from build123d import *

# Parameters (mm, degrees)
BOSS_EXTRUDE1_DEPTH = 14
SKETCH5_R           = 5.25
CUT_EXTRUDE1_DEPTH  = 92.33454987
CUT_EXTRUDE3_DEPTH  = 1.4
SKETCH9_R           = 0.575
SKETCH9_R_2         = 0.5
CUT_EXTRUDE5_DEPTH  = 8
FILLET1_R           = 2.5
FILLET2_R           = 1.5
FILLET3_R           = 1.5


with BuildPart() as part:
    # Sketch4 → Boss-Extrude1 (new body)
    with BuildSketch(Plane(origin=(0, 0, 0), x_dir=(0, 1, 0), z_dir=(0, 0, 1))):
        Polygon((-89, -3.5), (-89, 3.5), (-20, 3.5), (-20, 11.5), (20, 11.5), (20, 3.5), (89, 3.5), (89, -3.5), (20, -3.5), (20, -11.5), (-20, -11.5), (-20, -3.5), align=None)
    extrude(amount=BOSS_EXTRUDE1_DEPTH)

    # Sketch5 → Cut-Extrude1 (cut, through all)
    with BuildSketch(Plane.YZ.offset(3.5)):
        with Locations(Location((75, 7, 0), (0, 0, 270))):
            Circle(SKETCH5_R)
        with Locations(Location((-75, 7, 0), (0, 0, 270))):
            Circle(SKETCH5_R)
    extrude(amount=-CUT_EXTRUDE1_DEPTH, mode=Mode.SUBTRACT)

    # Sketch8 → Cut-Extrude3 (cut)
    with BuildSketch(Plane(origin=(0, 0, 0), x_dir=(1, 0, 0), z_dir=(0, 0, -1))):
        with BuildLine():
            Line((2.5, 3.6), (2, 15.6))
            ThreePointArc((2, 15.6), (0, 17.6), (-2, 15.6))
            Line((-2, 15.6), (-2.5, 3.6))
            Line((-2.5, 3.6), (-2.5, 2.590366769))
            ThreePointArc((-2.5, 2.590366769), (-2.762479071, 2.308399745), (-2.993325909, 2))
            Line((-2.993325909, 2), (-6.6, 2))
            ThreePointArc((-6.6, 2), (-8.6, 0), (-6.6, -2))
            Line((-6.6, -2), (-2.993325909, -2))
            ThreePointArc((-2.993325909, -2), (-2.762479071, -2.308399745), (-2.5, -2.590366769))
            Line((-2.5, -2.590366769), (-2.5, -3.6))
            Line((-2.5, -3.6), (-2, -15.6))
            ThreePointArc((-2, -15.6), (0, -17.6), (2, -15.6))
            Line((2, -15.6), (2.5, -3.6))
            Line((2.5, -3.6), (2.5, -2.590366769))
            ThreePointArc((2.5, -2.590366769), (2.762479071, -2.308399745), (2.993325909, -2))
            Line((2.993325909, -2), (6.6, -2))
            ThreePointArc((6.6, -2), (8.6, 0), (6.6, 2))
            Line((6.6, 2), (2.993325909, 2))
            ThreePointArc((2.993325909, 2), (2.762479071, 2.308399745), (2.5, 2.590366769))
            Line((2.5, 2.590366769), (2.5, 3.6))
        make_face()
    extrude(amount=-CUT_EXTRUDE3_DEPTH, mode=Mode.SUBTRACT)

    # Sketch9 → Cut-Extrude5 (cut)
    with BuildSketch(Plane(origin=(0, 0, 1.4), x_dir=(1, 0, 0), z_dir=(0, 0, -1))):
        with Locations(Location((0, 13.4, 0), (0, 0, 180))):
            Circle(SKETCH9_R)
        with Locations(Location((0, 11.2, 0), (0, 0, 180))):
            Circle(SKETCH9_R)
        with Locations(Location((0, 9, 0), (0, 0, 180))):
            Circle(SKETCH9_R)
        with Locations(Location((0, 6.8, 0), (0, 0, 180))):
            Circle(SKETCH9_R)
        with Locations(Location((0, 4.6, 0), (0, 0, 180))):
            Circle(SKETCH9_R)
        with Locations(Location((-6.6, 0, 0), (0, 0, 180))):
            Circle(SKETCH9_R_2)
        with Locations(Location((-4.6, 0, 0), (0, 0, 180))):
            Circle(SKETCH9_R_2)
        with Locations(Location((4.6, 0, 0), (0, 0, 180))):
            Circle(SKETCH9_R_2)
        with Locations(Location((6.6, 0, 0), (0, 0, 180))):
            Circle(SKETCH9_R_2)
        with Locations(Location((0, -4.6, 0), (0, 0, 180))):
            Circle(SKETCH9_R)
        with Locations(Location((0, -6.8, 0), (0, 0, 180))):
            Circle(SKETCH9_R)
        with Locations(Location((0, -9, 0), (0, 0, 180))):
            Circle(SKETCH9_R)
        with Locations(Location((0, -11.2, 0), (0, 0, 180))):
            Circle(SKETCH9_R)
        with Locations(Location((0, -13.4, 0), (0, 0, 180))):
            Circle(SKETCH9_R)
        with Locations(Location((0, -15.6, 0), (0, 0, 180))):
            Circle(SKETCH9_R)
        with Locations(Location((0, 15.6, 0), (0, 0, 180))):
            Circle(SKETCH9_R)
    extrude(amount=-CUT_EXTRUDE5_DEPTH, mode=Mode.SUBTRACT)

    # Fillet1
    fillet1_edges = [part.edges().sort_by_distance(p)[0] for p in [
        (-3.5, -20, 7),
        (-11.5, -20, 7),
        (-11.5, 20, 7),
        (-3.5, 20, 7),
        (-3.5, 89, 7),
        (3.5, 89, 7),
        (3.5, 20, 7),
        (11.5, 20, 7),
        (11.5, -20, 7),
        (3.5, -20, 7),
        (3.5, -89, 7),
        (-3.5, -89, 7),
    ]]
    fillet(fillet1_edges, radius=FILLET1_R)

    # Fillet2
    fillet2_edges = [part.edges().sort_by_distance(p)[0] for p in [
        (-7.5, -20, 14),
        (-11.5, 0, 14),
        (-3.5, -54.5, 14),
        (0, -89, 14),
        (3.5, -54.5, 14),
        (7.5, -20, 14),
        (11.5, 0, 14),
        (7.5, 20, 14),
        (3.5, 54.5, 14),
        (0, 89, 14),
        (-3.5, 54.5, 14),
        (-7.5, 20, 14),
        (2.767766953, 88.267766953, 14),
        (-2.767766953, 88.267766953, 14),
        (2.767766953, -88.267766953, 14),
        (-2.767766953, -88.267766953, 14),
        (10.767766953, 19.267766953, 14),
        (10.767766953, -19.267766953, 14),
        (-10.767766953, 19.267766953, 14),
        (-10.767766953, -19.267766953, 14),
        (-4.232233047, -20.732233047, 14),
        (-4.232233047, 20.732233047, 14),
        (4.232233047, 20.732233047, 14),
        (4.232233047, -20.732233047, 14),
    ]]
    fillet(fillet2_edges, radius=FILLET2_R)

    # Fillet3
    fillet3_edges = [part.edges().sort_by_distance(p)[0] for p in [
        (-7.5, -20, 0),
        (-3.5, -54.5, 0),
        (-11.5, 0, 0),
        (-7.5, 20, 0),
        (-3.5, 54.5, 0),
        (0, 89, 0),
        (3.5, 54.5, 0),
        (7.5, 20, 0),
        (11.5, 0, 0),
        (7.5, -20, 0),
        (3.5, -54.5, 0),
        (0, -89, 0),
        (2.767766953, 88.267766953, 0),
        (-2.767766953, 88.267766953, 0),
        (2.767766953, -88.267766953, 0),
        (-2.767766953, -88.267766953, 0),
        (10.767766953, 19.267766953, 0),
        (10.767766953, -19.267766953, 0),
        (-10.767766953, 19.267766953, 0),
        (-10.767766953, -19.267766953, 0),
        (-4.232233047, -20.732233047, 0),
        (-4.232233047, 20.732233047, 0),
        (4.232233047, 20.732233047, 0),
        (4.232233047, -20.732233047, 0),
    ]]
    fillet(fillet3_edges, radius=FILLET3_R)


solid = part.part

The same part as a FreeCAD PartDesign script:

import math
import FreeCAD as App
import Part
import Sketcher

V = App.Vector
Q = App.Units.Quantity


def edges_at(feature, points):
    """Names of the edges that pass closest to the given points."""
    edges = feature.Shape.Edges
    near = lambda p: min(range(len(edges)), key=lambda i: edges[i].distToShape(Part.Vertex(*p))[0])
    return sorted({f"Edge{near(p) + 1}" for p in points})

doc = App.newDocument("Part")
params = doc.addObject("Spreadsheet::Sheet", "Params")
for row, (alias, value) in enumerate([
    ("sketch1_width", "7 mm"),
    ("sketch1_width2", "8 mm"),
    ("sketch1_height", "69 mm"),
    ("sketch1_height2", "40 mm"),
    ("pad1_length", "14 mm"),
    ("sketch2_diameter", "10.5 mm"),
    ("sketch3_radius", "2 mm"),
    ("sketch3_radius2", "3.6 mm"),
    ("pocket2_length", "1.4 mm"),
    ("sketch4_diameter", "1 mm"),
    ("sketch4_diameter2", "1.15 mm"),
    ("pocket3_length", "8 mm"),
    ("fillet_radius", "2.5 mm"),
    ("fillet2_radius", "1.5 mm"),
    ("fillet3_radius", "1.5 mm"),
], start=1):
    params.set(f"A{row}", alias)
    params.set(f"B{row}", "=" + value)
    params.setAlias(f"B{row}", alias)

body = doc.addObject("PartDesign::Body", "Body")

sketch1 = doc.addObject("Sketcher::SketchObject", "Sketch")
body.addObject(sketch1)
sketch1.AttachmentSupport = (doc.XY_Plane, [""])
sketch1.MapMode = "FlatFace"
sketch1.addGeometry([
    Part.LineSegment(V(-4, -89, 0), V(4, -89, 0)),
    Part.LineSegment(V(4, -89, 0), V(4, -20, 0)),
    Part.LineSegment(V(4, -20, 0), V(12, -20, 0)),
    Part.LineSegment(V(12, -20, 0), V(12, 20, 0)),
    Part.LineSegment(V(12, 20, 0), V(4, 20, 0)),
    Part.LineSegment(V(4, 20, 0), V(4, 89, 0)),
    Part.LineSegment(V(4, 89, 0), V(-4, 89, 0)),
    Part.LineSegment(V(-4, 89, 0), V(-4, 20, 0)),
    Part.LineSegment(V(-4, 20, 0), V(-12, 20, 0)),
    Part.LineSegment(V(-12, 20, 0), V(-12, -20, 0)),
    Part.LineSegment(V(-12, -20, 0), V(-4, -20, 0)),
    Part.LineSegment(V(-4, -20, 0), V(-4, -89, 0)),
], False)
sketch1.addConstraint([
    Sketcher.Constraint("Coincident", 0, 2, 1, 1),
    Sketcher.Constraint("Coincident", 1, 2, 2, 1),
    Sketcher.Constraint("Coincident", 2, 2, 3, 1),
    Sketcher.Constraint("Coincident", 3, 2, 4, 1),
    Sketcher.Constraint("Coincident", 4, 2, 5, 1),
    Sketcher.Constraint("Coincident", 5, 2, 6, 1),
    Sketcher.Constraint("Coincident", 6, 2, 7, 1),
    Sketcher.Constraint("Coincident", 7, 2, 8, 1),
    Sketcher.Constraint("Coincident", 8, 2, 9, 1),
    Sketcher.Constraint("Coincident", 9, 2, 10, 1),
    Sketcher.Constraint("Coincident", 10, 2, 11, 1),
    Sketcher.Constraint("Coincident", 11, 2, 0, 1),
    Sketcher.Constraint("Horizontal", 0),
    Sketcher.Constraint("Vertical", 1),
    Sketcher.Constraint("Horizontal", 2),
    Sketcher.Constraint("Vertical", 3),
    Sketcher.Constraint("Horizontal", 4),
    Sketcher.Constraint("Vertical", 5),
    Sketcher.Constraint("Horizontal", 6),
    Sketcher.Constraint("Vertical", 7),
    Sketcher.Constraint("Horizontal", 8),
    Sketcher.Constraint("Vertical", 9),
    Sketcher.Constraint("Horizontal", 10),
    Sketcher.Constraint("Vertical", 11),
    Sketcher.Constraint("Symmetric", 0, 2, 6, 2, -1, 1),
    Sketcher.Constraint("Symmetric", 2, 2, 8, 2, -1, 1),
    Sketcher.Constraint("Symmetric", 4, 2, 10, 2, -1, 1),
    Sketcher.Constraint("Symmetric", 4, 2, 7, 2, -2),
    Sketcher.Constraint("DistanceX", 0, 1, 0, 2, Q("7 mm")),
    Sketcher.Constraint("DistanceX", 2, 1, 2, 2, Q("8 mm")),
    Sketcher.Constraint("DistanceY", 1, 1, 1, 2, Q("69 mm")),
    Sketcher.Constraint("DistanceY", 3, 1, 3, 2, Q("40 mm")),
])
sketch1.setExpression("Constraints[28]", "Params.sketch1_width")
sketch1.setExpression("Constraints[29]", "Params.sketch1_width2")
sketch1.setExpression("Constraints[30]", "Params.sketch1_height")
sketch1.setExpression("Constraints[31]", "Params.sketch1_height2")
pad1 = doc.addObject("PartDesign::Pad", "Pad")
body.addObject(pad1)
pad1.Profile = sketch1
pad1.setExpression("Length", "Params.pad1_length")

sketch2 = doc.addObject("Sketcher::SketchObject", "Sketch001")
body.addObject(sketch2)
sketch2.AttachmentSupport = (doc.YZ_Plane, [""])
sketch2.MapMode = "FlatFace"
sketch2.AttachmentOffset = App.Placement(V(0, 0, 3.5), App.Rotation())
sketch2.addGeometry([
    Part.Circle(V(75, 7, 0), V(0, 0, 1), 5),
    Part.Circle(V(-75, 7, 0), V(0, 0, 1), 5),
], False)
sketch2.addConstraint([
    Sketcher.Constraint("Equal", 0, 1),
    Sketcher.Constraint("Symmetric", 0, 3, 1, 3, -2),
    Sketcher.Constraint("Diameter", 0, Q("10.5 mm")),
    Sketcher.Constraint("DistanceX", -1, 1, 0, 3, Q("75 mm")),
    Sketcher.Constraint("DistanceY", -1, 1, 0, 3, Q("7 mm")),
])
sketch2.setExpression("Constraints[2]", "Params.sketch2_diameter")
pocket1 = doc.addObject("PartDesign::Pocket", "Pocket")
body.addObject(pocket1)
pocket1.Profile = sketch2
pocket1.Type = "ThroughAll"

sketch3 = doc.addObject("Sketcher::SketchObject", "Sketch002")
body.addObject(sketch3)
sketch3.AttachmentSupport = (doc.XY_Plane, [""])
sketch3.MapMode = "FlatFace"
sketch3.addGeometry([
    Part.LineSegment(V(2.5, -3.6, 0), V(2, -15.6, 0)),
    Part.ArcOfCircle(Part.Circle(V(0, -15.6, 0), V(0, 0, 1), 2), math.radians(180), math.radians(360)),
    Part.LineSegment(V(-2, -15.6, 0), V(-2.5, -3.6, 0)),
    Part.LineSegment(V(-2.5, -3.6, 0), V(-2.5, -2.6, 0)),
    Part.ArcOfCircle(Part.Circle(V(0, 0, 0), V(0, 0, 1), 3.6), math.radians(-146.25), math.radians(-133.98)),
    Part.LineSegment(V(-3, -2, 0), V(-6.6, -2, 0)),
    Part.ArcOfCircle(Part.Circle(V(-6.6, 0, 0), V(0, 0, 1), 2), math.radians(90), math.radians(270)),
    Part.LineSegment(V(-6.6, 2, 0), V(-3, 2, 0)),
    Part.ArcOfCircle(Part.Circle(V(0, 0, 0), V(0, 0, 1), 3.6), math.radians(133.98), math.radians(146.25)),
    Part.LineSegment(V(-2.5, 2.6, 0), V(-2.5, 3.6, 0)),
    Part.LineSegment(V(-2.5, 3.6, 0), V(-2, 15.6, 0)),
    Part.ArcOfCircle(Part.Circle(V(0, 15.6, 0), V(0, 0, 1), 2), math.radians(0), math.radians(180)),
    Part.LineSegment(V(2, 15.6, 0), V(2.5, 3.6, 0)),
    Part.LineSegment(V(2.5, 3.6, 0), V(2.5, 2.6, 0)),
    Part.ArcOfCircle(Part.Circle(V(0, 0, 0), V(0, 0, 1), 3.6), math.radians(33.75), math.radians(46.02)),
    Part.LineSegment(V(3, 2, 0), V(6.6, 2, 0)),
    Part.ArcOfCircle(Part.Circle(V(6.6, 0, 0), V(0, 0, 1), 2), math.radians(-90), math.radians(90)),
    Part.LineSegment(V(6.6, -2, 0), V(3, -2, 0)),
    Part.ArcOfCircle(Part.Circle(V(0, 0, 0), V(0, 0, 1), 3.6), math.radians(-46.02), math.radians(-33.75)),
    Part.LineSegment(V(2.5, -2.6, 0), V(2.5, -3.6, 0)),
], False)
sketch3.addConstraint([
    Sketcher.Constraint("Coincident", 0, 2, 1, 2),
    Sketcher.Constraint("Coincident", 1, 1, 2, 1),
    Sketcher.Constraint("Coincident", 2, 2, 3, 1),
    Sketcher.Constraint("Coincident", 3, 2, 4, 2),
    Sketcher.Constraint("Coincident", 4, 1, 5, 1),
    Sketcher.Constraint("Tangent", 5, 2, 6, 2),
    Sketcher.Constraint("Tangent", 6, 1, 7, 1),
    Sketcher.Constraint("Coincident", 7, 2, 8, 2),
    Sketcher.Constraint("Coincident", 8, 1, 9, 1),
    Sketcher.Constraint("Coincident", 9, 2, 10, 1),
    Sketcher.Constraint("Coincident", 10, 2, 11, 2),
    Sketcher.Constraint("Coincident", 11, 1, 12, 1),
    Sketcher.Constraint("Coincident", 12, 2, 13, 1),
    Sketcher.Constraint("Coincident", 13, 2, 14, 2),
    Sketcher.Constraint("Coincident", 14, 1, 15, 1),
    Sketcher.Constraint("Tangent", 15, 2, 16, 2),
    Sketcher.Constraint("Tangent", 16, 1, 17, 1),
    Sketcher.Constraint("Coincident", 17, 2, 18, 2),
    Sketcher.Constraint("Coincident", 18, 1, 19, 1),
    Sketcher.Constraint("Coincident", 19, 2, 0, 1),
    Sketcher.Constraint("Vertical", 3),
    Sketcher.Constraint("Horizontal", 5),
    Sketcher.Constraint("Horizontal", 7),
    Sketcher.Constraint("Vertical", 9),
    Sketcher.Constraint("Vertical", 13),
    Sketcher.Constraint("Horizontal", 15),
    Sketcher.Constraint("Horizontal", 17),
    Sketcher.Constraint("Vertical", 19),
    Sketcher.Constraint("Coincident", 4, 3, -1, 1),
    Sketcher.Constraint("Coincident", 8, 3, -1, 1),
    Sketcher.Constraint("Coincident", 14, 3, -1, 1),
    Sketcher.Constraint("Coincident", 18, 3, -1, 1),
    Sketcher.Constraint("Equal", 1, 6),
    Sketcher.Constraint("Equal", 4, 8),
    Sketcher.Constraint("Equal", 6, 11),
    Sketcher.Constraint("Equal", 8, 14),
    Sketcher.Constraint("Equal", 11, 16),
    Sketcher.Constraint("Equal", 14, 18),
    Sketcher.Constraint("Symmetric", 1, 3, 11, 3, -1, 1),
    Sketcher.Constraint("Symmetric", 6, 3, 16, 3, -1, 1),
    Sketcher.Constraint("Symmetric", 2, 2, 12, 2, -1, 1),
    Sketcher.Constraint("Symmetric", 9, 2, 19, 2, -1, 1),
    Sketcher.Constraint("Symmetric", 0, 2, 1, 1, -2),
    Sketcher.Constraint("Symmetric", 9, 2, 12, 2, -2),
    Sketcher.Constraint("PointOnObject", 6, 3, -1),
    Sketcher.Constraint("Parallel", 0, 10),
    Sketcher.Constraint("Parallel", 2, 12),
    Sketcher.Constraint("Horizontal", 1, 3, 0, 2),
    Sketcher.Constraint("Radius", 1, Q("2 mm")),
    Sketcher.Constraint("Radius", 4, Q("3.6 mm")),
    Sketcher.Constraint("DistanceY", 9, 2, 10, 2, Q("12 mm")),
    Sketcher.Constraint("DistanceX", 9, 2, 12, 2, Q("5 mm")),
    Sketcher.Constraint("DistanceY", 1, 3, -1, 1, Q("15.6 mm")),
    Sketcher.Constraint("DistanceX", 6, 3, -1, 1, Q("6.6 mm")),
])
sketch3.setExpression("Constraints[48]", "Params.sketch3_radius")
sketch3.setExpression("Constraints[49]", "Params.sketch3_radius2")
pocket2 = doc.addObject("PartDesign::Pocket", "Pocket001")
body.addObject(pocket2)
pocket2.Profile = sketch3
pocket2.setExpression("Length", "Params.pocket2_length")
pocket2.Reversed = True

sketch4 = doc.addObject("Sketcher::SketchObject", "Sketch003")
body.addObject(sketch4)
sketch4.AttachmentSupport = (doc.XY_Plane, [""])
sketch4.MapMode = "FlatFace"
sketch4.AttachmentOffset = App.Placement(V(0, 0, 1.4), App.Rotation())
sketch4.addGeometry([
    Part.Circle(V(0, -13.4, 0), V(0, 0, 1), 0.6),
    Part.Circle(V(0, -11.2, 0), V(0, 0, 1), 0.6),
    Part.Circle(V(0, -9, 0), V(0, 0, 1), 0.6),
    Part.Circle(V(0, -6.8, 0), V(0, 0, 1), 0.6),
    Part.Circle(V(0, -4.6, 0), V(0, 0, 1), 0.6),
    Part.Circle(V(-6.6, 0, 0), V(0, 0, 1), 0.5),
    Part.Circle(V(-4.6, 0, 0), V(0, 0, 1), 0.5),
    Part.Circle(V(4.6, 0, 0), V(0, 0, 1), 0.5),
    Part.Circle(V(6.6, 0, 0), V(0, 0, 1), 0.5),
    Part.Circle(V(0, 4.6, 0), V(0, 0, 1), 0.6),
    Part.Circle(V(0, 6.8, 0), V(0, 0, 1), 0.6),
    Part.Circle(V(0, 9, 0), V(0, 0, 1), 0.6),
    Part.Circle(V(0, 11.2, 0), V(0, 0, 1), 0.6),
    Part.Circle(V(0, 13.4, 0), V(0, 0, 1), 0.6),
    Part.Circle(V(0, 15.6, 0), V(0, 0, 1), 0.6),
    Part.Circle(V(0, -15.6, 0), V(0, 0, 1), 0.6),
], False)
sketch4.addConstraint([
    Sketcher.Constraint("Equal", 0, 1),
    Sketcher.Constraint("Equal", 1, 2),
    Sketcher.Constraint("Equal", 2, 3),
    Sketcher.Constraint("Equal", 3, 4),
    Sketcher.Constraint("Equal", 5, 6),
    Sketcher.Constraint("Equal", 6, 7),
    Sketcher.Constraint("Equal", 7, 8),
    Sketcher.Constraint("Equal", 4, 9),
    Sketcher.Constraint("Equal", 9, 10),
    Sketcher.Constraint("Equal", 10, 11),
    Sketcher.Constraint("Equal", 11, 12),
    Sketcher.Constraint("Equal", 12, 13),
    Sketcher.Constraint("Equal", 13, 14),
    Sketcher.Constraint("Equal", 14, 15),
    Sketcher.Constraint("Symmetric", 6, 3, 7, 3, -1, 1),
    Sketcher.Constraint("Symmetric", 5, 3, 8, 3, -1, 1),
    Sketcher.Constraint("Symmetric", 4, 3, 9, 3, -1, 1),
    Sketcher.Constraint("Symmetric", 3, 3, 10, 3, -1, 1),
    Sketcher.Constraint("Symmetric", 2, 3, 11, 3, -1, 1),
    Sketcher.Constraint("Symmetric", 1, 3, 12, 3, -1, 1),
    Sketcher.Constraint("Symmetric", 0, 3, 13, 3, -1, 1),
    Sketcher.Constraint("Symmetric", 14, 3, 15, 3, -1, 1),
    Sketcher.Constraint("PointOnObject", 0, 3, -2),
    Sketcher.Constraint("PointOnObject", 1, 3, -2),
    Sketcher.Constraint("PointOnObject", 2, 3, -2),
    Sketcher.Constraint("PointOnObject", 3, 3, -2),
    Sketcher.Constraint("PointOnObject", 4, 3, -2),
    Sketcher.Constraint("PointOnObject", 5, 3, -1),
    Sketcher.Constraint("PointOnObject", 6, 3, -1),
    Sketcher.Constraint("PointOnObject", 14, 3, -2),
    Sketcher.Constraint("Diameter", 5, Q("1 mm")),
    Sketcher.Constraint("Diameter", 0, Q("1.15 mm")),
    Sketcher.Constraint("DistanceY", 2, 3, -1, 1, Q("9 mm")),
    Sketcher.Constraint("DistanceX", 5, 3, 6, 3, Q("2 mm")),
    Sketcher.Constraint("DistanceY", 9, 3, 14, 3, Q("11 mm")),
    Sketcher.Constraint("DistanceY", 0, 3, -1, 1, Q("13.4 mm")),
    Sketcher.Constraint("DistanceY", 1, 3, -1, 1, Q("11.2 mm")),
    Sketcher.Constraint("DistanceY", 3, 3, -1, 1, Q("6.8 mm")),
    Sketcher.Constraint("DistanceY", 4, 3, -1, 1, Q("4.6 mm")),
    Sketcher.Constraint("DistanceX", 5, 3, -1, 1, Q("6.6 mm")),
])
sketch4.setExpression("Constraints[30]", "Params.sketch4_diameter")
sketch4.setExpression("Constraints[31]", "Params.sketch4_diameter2")
pocket3 = doc.addObject("PartDesign::Pocket", "Pocket002")
body.addObject(pocket3)
pocket3.Profile = sketch4
pocket3.setExpression("Length", "Params.pocket3_length")
pocket3.Reversed = True
doc.recompute()

fillet = doc.addObject("PartDesign::Fillet", "Fillet")
body.addObject(fillet)
fillet.Base = (pocket3, edges_at(pocket3, [
    (-3.5, -20, 7),
    (-11.5, -20, 7),
    (-11.5, 20, 7),
    (-3.5, 20, 7),
    (-3.5, 89, 7),
    (3.5, 89, 7),
    (3.5, 20, 7),
    (11.5, 20, 7),
    (11.5, -20, 7),
    (3.5, -20, 7),
    (3.5, -89, 7),
    (-3.5, -89, 7),
]))
fillet.setExpression("Radius", "Params.fillet_radius")
doc.recompute()

fillet2 = doc.addObject("PartDesign::Fillet", "Fillet001")
body.addObject(fillet2)
fillet2.Base = (fillet, edges_at(fillet, [
    (-7.5, -20, 14),
    (-11.5, 0, 14),
    (-3.5, -54.5, 14),
    (0, -89, 14),
    (3.5, -54.5, 14),
    (7.5, -20, 14),
    (11.5, 0, 14),
    (7.5, 20, 14),
    (3.5, 54.5, 14),
    (0, 89, 14),
    (-3.5, 54.5, 14),
    (-7.5, 20, 14),
    (2.768, 88.268, 14),
    (-2.768, 88.268, 14),
    (2.768, -88.268, 14),
    (-2.768, -88.268, 14),
    (10.768, 19.268, 14),
    (10.768, -19.268, 14),
    (-10.768, 19.268, 14),
    (-10.768, -19.268, 14),
    (-4.232, -20.732, 14),
    (-4.232, 20.732, 14),
    (4.232, 20.732, 14),
    (4.232, -20.732, 14),
]))
fillet2.setExpression("Radius", "Params.fillet2_radius")
doc.recompute()

fillet3 = doc.addObject("PartDesign::Fillet", "Fillet002")
body.addObject(fillet3)
fillet3.Base = (fillet2, edges_at(fillet2, [
    (-7.5, -20, 0),
    (-3.5, -54.5, 0),
    (-11.5, 0, 0),
    (-7.5, 20, 0),
    (-3.5, 54.5, 0),
    (0, 89, 0),
    (3.5, 54.5, 0),
    (7.5, 20, 0),
    (11.5, 0, 0),
    (7.5, -20, 0),
    (3.5, -54.5, 0),
    (0, -89, 0),
    (2.768, 88.268, 0),
    (-2.768, 88.268, 0),
    (2.768, -88.268, 0),
    (-2.768, -88.268, 0),
    (10.768, 19.268, 0),
    (10.768, -19.268, 0),
    (-10.768, 19.268, 0),
    (-10.768, -19.268, 0),
    (-4.232, -20.732, 0),
    (-4.232, 20.732, 0),
    (4.232, 20.732, 0),
    (4.232, -20.732, 0),
]))
fillet3.setExpression("Radius", "Params.fillet3_radius")

doc.recompute()
